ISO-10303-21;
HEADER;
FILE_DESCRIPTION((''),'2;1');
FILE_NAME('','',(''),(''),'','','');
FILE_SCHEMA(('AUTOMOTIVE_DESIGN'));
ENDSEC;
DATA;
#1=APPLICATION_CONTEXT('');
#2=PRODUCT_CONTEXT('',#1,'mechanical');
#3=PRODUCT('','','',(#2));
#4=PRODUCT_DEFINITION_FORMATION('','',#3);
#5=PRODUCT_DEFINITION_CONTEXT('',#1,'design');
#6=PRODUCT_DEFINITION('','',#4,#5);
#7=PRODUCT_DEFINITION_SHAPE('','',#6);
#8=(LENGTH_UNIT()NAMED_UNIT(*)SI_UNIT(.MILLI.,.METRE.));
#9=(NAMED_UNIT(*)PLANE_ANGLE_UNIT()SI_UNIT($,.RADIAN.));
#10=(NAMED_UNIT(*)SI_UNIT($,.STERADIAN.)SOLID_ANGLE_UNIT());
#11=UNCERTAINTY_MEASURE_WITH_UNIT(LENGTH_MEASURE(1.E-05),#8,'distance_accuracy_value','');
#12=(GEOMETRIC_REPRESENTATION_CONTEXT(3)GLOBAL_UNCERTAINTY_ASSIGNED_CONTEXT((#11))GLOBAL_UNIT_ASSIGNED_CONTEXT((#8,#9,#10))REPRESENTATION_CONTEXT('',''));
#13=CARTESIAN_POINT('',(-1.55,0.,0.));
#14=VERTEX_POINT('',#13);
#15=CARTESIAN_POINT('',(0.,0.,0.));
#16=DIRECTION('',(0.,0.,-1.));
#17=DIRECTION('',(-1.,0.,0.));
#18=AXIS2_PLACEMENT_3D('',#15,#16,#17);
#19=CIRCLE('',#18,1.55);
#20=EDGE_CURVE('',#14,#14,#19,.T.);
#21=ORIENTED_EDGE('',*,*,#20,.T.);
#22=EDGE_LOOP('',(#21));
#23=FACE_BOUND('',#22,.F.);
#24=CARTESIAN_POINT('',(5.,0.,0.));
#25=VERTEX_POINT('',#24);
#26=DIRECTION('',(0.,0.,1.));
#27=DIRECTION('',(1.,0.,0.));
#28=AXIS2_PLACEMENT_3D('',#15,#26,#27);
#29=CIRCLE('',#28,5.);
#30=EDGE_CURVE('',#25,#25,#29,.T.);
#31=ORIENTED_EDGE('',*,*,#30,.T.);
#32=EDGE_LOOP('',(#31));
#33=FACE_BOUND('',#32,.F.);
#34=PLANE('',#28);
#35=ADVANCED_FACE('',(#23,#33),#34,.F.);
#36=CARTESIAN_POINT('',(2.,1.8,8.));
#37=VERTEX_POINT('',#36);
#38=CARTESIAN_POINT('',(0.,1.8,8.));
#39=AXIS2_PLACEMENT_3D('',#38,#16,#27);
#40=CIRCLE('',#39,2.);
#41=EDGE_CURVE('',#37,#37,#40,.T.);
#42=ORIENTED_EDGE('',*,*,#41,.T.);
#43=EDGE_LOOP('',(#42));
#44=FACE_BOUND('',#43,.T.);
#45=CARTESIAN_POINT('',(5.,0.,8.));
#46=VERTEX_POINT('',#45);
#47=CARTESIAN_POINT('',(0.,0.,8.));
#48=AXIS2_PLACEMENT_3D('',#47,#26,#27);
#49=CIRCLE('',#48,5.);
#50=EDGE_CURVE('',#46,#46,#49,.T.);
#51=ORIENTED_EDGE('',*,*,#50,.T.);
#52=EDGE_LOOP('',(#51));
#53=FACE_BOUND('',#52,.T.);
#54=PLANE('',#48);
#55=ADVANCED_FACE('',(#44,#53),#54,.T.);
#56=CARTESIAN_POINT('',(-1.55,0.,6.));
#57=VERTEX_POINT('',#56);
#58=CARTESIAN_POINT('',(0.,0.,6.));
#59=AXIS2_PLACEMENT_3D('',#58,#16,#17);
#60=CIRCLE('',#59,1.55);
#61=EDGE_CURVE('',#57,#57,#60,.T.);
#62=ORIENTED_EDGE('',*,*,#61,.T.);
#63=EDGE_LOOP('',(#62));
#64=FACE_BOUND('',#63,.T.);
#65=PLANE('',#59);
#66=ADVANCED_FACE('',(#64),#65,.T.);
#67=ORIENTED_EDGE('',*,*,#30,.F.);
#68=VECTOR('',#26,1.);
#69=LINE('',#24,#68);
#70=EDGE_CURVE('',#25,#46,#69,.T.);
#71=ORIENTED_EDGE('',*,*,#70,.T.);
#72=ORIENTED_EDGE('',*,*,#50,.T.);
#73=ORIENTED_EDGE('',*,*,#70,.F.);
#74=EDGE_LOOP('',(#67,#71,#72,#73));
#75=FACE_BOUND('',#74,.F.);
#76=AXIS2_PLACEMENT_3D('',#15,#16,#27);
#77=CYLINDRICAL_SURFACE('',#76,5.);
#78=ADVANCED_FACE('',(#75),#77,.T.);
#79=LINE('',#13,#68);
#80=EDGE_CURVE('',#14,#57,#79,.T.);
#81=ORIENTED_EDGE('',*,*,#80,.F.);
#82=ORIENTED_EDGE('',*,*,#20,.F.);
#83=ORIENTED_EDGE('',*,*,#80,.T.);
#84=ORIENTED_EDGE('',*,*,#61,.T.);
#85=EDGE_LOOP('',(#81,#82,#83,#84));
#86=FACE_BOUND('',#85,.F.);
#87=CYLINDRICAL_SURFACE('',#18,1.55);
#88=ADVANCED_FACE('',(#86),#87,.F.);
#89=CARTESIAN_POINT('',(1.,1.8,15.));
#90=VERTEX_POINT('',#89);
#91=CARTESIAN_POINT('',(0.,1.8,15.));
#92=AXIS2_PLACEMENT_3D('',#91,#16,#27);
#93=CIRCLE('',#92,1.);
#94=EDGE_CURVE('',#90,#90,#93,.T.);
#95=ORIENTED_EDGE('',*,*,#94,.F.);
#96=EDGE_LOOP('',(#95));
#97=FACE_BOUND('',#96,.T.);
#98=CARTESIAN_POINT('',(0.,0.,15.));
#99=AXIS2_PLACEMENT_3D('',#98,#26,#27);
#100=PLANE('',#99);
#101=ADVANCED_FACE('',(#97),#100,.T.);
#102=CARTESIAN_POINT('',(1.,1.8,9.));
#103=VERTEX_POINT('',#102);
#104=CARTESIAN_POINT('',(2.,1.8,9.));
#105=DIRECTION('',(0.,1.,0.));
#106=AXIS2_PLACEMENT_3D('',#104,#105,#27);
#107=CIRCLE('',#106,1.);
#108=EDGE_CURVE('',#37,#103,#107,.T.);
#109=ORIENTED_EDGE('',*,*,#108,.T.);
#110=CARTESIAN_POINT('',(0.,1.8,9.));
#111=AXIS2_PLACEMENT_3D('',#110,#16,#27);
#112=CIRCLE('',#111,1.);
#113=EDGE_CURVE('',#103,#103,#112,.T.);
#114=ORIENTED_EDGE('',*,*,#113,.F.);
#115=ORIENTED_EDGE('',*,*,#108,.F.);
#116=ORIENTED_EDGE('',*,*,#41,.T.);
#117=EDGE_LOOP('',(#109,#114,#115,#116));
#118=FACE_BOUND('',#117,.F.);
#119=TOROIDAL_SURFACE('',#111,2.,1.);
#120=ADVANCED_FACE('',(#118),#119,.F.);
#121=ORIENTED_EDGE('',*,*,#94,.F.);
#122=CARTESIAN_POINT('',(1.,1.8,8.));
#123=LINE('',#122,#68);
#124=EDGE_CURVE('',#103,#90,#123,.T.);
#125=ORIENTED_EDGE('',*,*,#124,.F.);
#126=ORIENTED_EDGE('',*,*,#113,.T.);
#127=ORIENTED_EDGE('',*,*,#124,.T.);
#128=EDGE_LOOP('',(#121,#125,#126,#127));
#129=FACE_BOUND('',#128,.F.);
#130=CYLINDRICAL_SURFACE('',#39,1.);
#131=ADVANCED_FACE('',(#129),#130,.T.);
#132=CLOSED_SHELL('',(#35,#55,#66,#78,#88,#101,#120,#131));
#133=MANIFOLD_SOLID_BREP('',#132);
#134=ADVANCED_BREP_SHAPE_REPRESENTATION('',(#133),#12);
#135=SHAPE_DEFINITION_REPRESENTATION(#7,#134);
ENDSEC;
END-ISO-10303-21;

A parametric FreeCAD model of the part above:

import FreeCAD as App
import Part
import Sketcher

V = App.Vector


def edges_at(feature, points):
    """Names of the edges that pass closest to the given points."""
    edges = feature.Shape.Edges
    near = lambda p: min(range(len(edges)), key=lambda i: edges[i].distToShape(Part.Vertex(*p))[0])
    return sorted({f"Edge{near(p) + 1}" for p in points})

doc = App.newDocument("Part")
body = doc.addObject("PartDesign::Body", "Body")

# Sketch on XY plane
sketch1 = doc.addObject("Sketcher::SketchObject", "Sketch")
body.addObject(sketch1)
sketch1.AttachmentSupport = (doc.XY_Plane, [""])
sketch1.MapMode = "FlatFace"
sketch1.addGeometry(Part.Circle(V(0, 0, 0), V(0, 0, 1), 5), False)
sketch1.addConstraint(Sketcher.Constraint("Coincident", 0, 3, -1, 1))
sketch1.addConstraint(Sketcher.Constraint("Diameter", 0, 10.0))
pad1 = doc.addObject("PartDesign::Pad", "Pad")
body.addObject(pad1)
pad1.Profile = sketch1
pad1.Length = 8

# Sketch on XY plane
sketch2 = doc.addObject("Sketcher::SketchObject", "Sketch001")
body.addObject(sketch2)
sketch2.AttachmentSupport = (doc.XY_Plane, [""])
sketch2.MapMode = "FlatFace"
sketch2.AttachmentOffset = App.Placement(V(0, 0, 8), App.Rotation())
sketch2.addGeometry(Part.Circle(V(0, 1.8, 0), V(0, 0, 1), 1), False)
sketch2.addConstraint(Sketcher.Constraint("PointOnObject", 0, 3, -2))
sketch2.addConstraint(Sketcher.Constraint("Diameter", 0, 2.0))
sketch2.addConstraint(Sketcher.Constraint("DistanceY", -1, 1, 0, 3, 1.8))
pad2 = doc.addObject("PartDesign::Pad", "Pad001")
body.addObject(pad2)
pad2.Profile = sketch2
pad2.Length = 7

# Sketch on XY plane
sketch3 = doc.addObject("Sketcher::SketchObject", "Sketch002")
body.addObject(sketch3)
sketch3.AttachmentSupport = (doc.XY_Plane, [""])
sketch3.MapMode = "FlatFace"
sketch3.addGeometry(Part.Circle(V(0, 0, 0), V(0, 0, 1), 1.6), False)
sketch3.addConstraint(Sketcher.Constraint("Coincident", 0, 3, -1, 1))
sketch3.addConstraint(Sketcher.Constraint("Diameter", 0, 3.1))
pocket1 = doc.addObject("PartDesign::Pocket", "Pocket")
body.addObject(pocket1)
pocket1.Profile = sketch3
pocket1.Length = 6
pocket1.Reversed = True
doc.recompute()

fillet = doc.addObject("PartDesign::Fillet", "Fillet")
body.addObject(fillet)
fillet.Base = (pocket1, edges_at(pocket1, [(-1, 1.8, 8)]))
fillet.Radius = 1

doc.recompute()
